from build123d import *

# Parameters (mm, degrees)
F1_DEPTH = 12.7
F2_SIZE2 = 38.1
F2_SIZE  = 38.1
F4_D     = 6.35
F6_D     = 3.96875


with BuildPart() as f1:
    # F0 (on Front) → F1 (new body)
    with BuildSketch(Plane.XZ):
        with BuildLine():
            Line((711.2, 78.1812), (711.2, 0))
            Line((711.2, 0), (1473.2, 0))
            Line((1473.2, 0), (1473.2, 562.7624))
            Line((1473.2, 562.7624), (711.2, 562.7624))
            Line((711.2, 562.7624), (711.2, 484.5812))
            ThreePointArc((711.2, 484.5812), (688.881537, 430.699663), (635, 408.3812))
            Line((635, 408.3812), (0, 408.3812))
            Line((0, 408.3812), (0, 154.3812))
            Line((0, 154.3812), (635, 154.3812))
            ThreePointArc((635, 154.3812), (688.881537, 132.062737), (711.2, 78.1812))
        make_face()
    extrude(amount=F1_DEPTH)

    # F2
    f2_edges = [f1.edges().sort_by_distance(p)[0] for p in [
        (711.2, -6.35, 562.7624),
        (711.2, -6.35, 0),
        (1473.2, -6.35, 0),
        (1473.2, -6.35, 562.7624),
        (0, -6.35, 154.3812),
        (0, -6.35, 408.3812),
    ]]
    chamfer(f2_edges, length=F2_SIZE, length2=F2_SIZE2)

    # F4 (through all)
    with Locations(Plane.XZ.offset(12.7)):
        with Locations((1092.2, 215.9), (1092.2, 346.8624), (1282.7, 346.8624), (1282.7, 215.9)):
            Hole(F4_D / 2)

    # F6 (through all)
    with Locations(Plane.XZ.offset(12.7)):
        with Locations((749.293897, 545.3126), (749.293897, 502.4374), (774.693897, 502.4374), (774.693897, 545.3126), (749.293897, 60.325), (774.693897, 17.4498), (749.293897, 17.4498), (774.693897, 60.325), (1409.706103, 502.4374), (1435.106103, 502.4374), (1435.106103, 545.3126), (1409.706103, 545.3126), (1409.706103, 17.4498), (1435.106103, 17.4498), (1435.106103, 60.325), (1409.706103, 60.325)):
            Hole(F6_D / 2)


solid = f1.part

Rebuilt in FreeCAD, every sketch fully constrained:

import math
import FreeCAD as App
import Part
import Sketcher

V = App.Vector
Q = App.Units.Quantity


def edges_at(feature, points):
    """Names of the edges that pass closest to the given points."""
    edges = feature.Shape.Edges
    near = lambda p: min(range(len(edges)), key=lambda i: edges[i].distToShape(Part.Vertex(*p))[0])
    return sorted({f"Edge{near(p) + 1}" for p in points})

doc = App.newDocument("Part")
body = doc.addObject("PartDesign::Body", "Body")

# Sketch on XZ plane
sketch1 = body.newObject("Sketcher::SketchObject", "Sketch")
sketch1.AttachmentSupport = (doc.getObject("XZ_Plane"), [""])
sketch1.MapMode = "FlatFace"
sketch1.addGeometry(Part.LineSegment(V(711, 78, 0), V(711, 0, 0)), False)
sketch1.addGeometry(Part.LineSegment(V(711, 0, 0), V(1473, 0, 0)), False)
sketch1.addGeometry(Part.LineSegment(V(1473, 0, 0), V(1473, 563, 0)), False)
sketch1.addGeometry(Part.LineSegment(V(1473, 563, 0), V(711, 563, 0)), False)
sketch1.addGeometry(Part.LineSegment(V(711, 563, 0), V(711, 485, 0)), False)
sketch1.addGeometry(Part.ArcOfCircle(Part.Circle(V(635, 485, 0), V(0, 0, 1), 76), math.radians(-90), math.radians(0)), False)
sketch1.addGeometry(Part.LineSegment(V(635, 408, 0), V(0, 408, 0)), False)
sketch1.addGeometry(Part.LineSegment(V(0, 408, 0), V(0, 154, 0)), False)
sketch1.addGeometry(Part.LineSegment(V(0, 154, 0), V(635, 154, 0)), False)
sketch1.addGeometry(Part.ArcOfCircle(Part.Circle(V(635, 78, 0), V(0, 0, 1), 76), math.radians(0), math.radians(90)), False)
sketch1.addConstraint(Sketcher.Constraint("Coincident", 0, 2, 1, 1))
sketch1.addConstraint(Sketcher.Constraint("Coincident", 1, 2, 2, 1))
sketch1.addConstraint(Sketcher.Constraint("Coincident", 2, 2, 3, 1))
sketch1.addConstraint(Sketcher.Constraint("Coincident", 3, 2, 4, 1))
sketch1.addConstraint(Sketcher.Constraint("Tangent", 4, 2, 5, 2))
sketch1.addConstraint(Sketcher.Constraint("Tangent", 5, 1, 6, 1))
sketch1.addConstraint(Sketcher.Constraint("Coincident", 6, 2, 7, 1))
sketch1.addConstraint(Sketcher.Constraint("Coincident", 7, 2, 8, 1))
sketch1.addConstraint(Sketcher.Constraint("Tangent", 8, 2, 9, 2))
sketch1.addConstraint(Sketcher.Constraint("Tangent", 9, 1, 0, 1))
sketch1.addConstraint(Sketcher.Constraint("Vertical", 0))
sketch1.addConstraint(Sketcher.Constraint("Horizontal", 1))
sketch1.addConstraint(Sketcher.Constraint("Vertical", 2))
sketch1.addConstraint(Sketcher.Constraint("Horizontal", 3))
sketch1.addConstraint(Sketcher.Constraint("Vertical", 4))
sketch1.addConstraint(Sketcher.Constraint("Horizontal", 6))
sketch1.addConstraint(Sketcher.Constraint("Vertical", 7))
sketch1.addConstraint(Sketcher.Constraint("Horizontal", 8))
sketch1.addConstraint(Sketcher.Constraint("Equal", 5, 9))
sketch1.addConstraint(Sketcher.Constraint("PointOnObject", 0, 2, -1))
sketch1.addConstraint(Sketcher.Constraint("PointOnObject", 6, 2, -2))
sketch1.addConstraint(Sketcher.Constraint("Vertical", 5, 3, 9, 3))
sketch1.addConstraint(Sketcher.Constraint("Equal", 0, 4))
sketch1.addConstraint(Sketcher.Constraint("Radius", 5, Q("3 in")))
sketch1.addConstraint(Sketcher.Constraint("DistanceX", 1, 1, 1, 2, Q("30 in")))
sketch1.addConstraint(Sketcher.Constraint("DistanceX", 6, 2, 6, 1, Q("25 in")))
sketch1.addConstraint(Sketcher.Constraint("DistanceY", 7, 2, 7, 1, Q("10 in")))
sketch1.addConstraint(Sketcher.Constraint("DistanceY", 0, 2, 0, 1, Q("3.078 in")))
pad1 = body.newObject("PartDesign::Pad", "Pad")
pad1.Profile = sketch1
pad1.Length = Q("0.5 in")
doc.recompute()

chamfer = body.newObject("PartDesign::Chamfer", "Chamfer")
chamfer.Base = (pad1, edges_at(pad1, [
    (711.2, -6.35, 562.762),
    (711.2, -6.35, 0),
    (1473.2, -6.35, 0),
    (1473.2, -6.35, 562.762),
    (0, -6.35, 154.381),
    (0, -6.35, 408.381),
]))
chamfer.ChamferType = "Two distances"
chamfer.Size = Q("1.5 in")
chamfer.Size2 = Q("1.5 in")

# Sketch on XZ plane
sketch2 = body.newObject("Sketcher::SketchObject", "Sketch001")
sketch2.AttachmentSupport = (doc.getObject("XZ_Plane"), [""])
sketch2.MapMode = "FlatFace"
sketch2.AttachmentOffset = App.Placement(V(0, 0, 0.5 * 25.4), App.Rotation())
sketch2.addGeometry(Part.Circle(V(1092.2, 215.9, 0), V(0, 0, 1), 3.2), False)
sketch2.addGeometry(Part.Circle(V(1092.2, 346.9, 0), V(0, 0, 1), 3.2), False)
sketch2.addGeometry(Part.Circle(V(1282.7, 346.9, 0), V(0, 0, 1), 3.2), False)
sketch2.addGeometry(Part.Circle(V(1282.7, 215.9, 0), V(0, 0, 1), 3.2), False)
sketch2.addConstraint(Sketcher.Constraint("Equal", 0, 1))
sketch2.addConstraint(Sketcher.Constraint("Equal", 1, 2))
sketch2.addConstraint(Sketcher.Constraint("Equal", 2, 3))
sketch2.addConstraint(Sketcher.Constraint("Horizontal", 1, 3, 2, 3))
sketch2.addConstraint(Sketcher.Constraint("Horizontal", 0, 3, 3, 3))
sketch2.addConstraint(Sketcher.Constraint("Vertical", 0, 3, 1, 3))
sketch2.addConstraint(Sketcher.Constraint("Vertical", 2, 3, 3, 3))
sketch2.addConstraint(Sketcher.Constraint("Diameter", 0, Q("0.25 in")))
sketch2.addConstraint(Sketcher.Constraint("DistanceX", -1, 1, 0, 3, Q("43 in")))
sketch2.addConstraint(Sketcher.Constraint("DistanceY", -1, 1, 0, 3, Q("8.5 in")))
sketch2.addConstraint(Sketcher.Constraint("DistanceX", -1, 1, 2, 3, Q("50.5 in")))
sketch2.addConstraint(Sketcher.Constraint("DistanceY", -1, 1, 1, 3, Q("13.656 in")))
doc.recompute()
hole = body.newObject("PartDesign::Hole", "Hole")
hole.Profile = sketch2
hole.ThreadType = "None"
hole.Diameter = Q("0.25 in")
hole.DepthType = "ThroughAll"

# Sketch on XZ plane
sketch3 = body.newObject("Sketcher::SketchObject", "Sketch002")
sketch3.AttachmentSupport = (doc.getObject("XZ_Plane"), [""])
sketch3.MapMode = "FlatFace"
sketch3.AttachmentOffset = App.Placement(V(0, 0, 0.5 * 25.4), App.Rotation())
sketch3.addGeometry(Part.Circle(V(749.3, 545.3, 0), V(0, 0, 1), 2), False)
sketch3.addGeometry(Part.Circle(V(749.3, 502.4, 0), V(0, 0, 1), 2), False)
sketch3.addGeometry(Part.Circle(V(774.7, 502.4, 0), V(0, 0, 1), 2), False)
sketch3.addGeometry(Part.Circle(V(774.7, 545.3, 0), V(0, 0, 1), 2), False)
sketch3.addGeometry(Part.Circle(V(749.3, 60.3, 0), V(0, 0, 1), 2), False)
sketch3.addGeometry(Part.Circle(V(774.7, 17.4, 0), V(0, 0, 1), 2), False)
sketch3.addGeometry(Part.Circle(V(749.3, 17.4, 0), V(0, 0, 1), 2), False)
sketch3.addGeometry(Part.Circle(V(774.7, 60.3, 0), V(0, 0, 1), 2), False)
sketch3.addGeometry(Part.Circle(V(1409.7, 502.4, 0), V(0, 0, 1), 2), False)
sketch3.addGeometry(Part.Circle(V(1435.1, 502.4, 0), V(0, 0, 1), 2), False)
sketch3.addGeometry(Part.Circle(V(1435.1, 545.3, 0), V(0, 0, 1), 2), False)
sketch3.addGeometry(Part.Circle(V(1409.7, 545.3, 0), V(0, 0, 1), 2), False)
sketch3.addGeometry(Part.Circle(V(1409.7, 17.4, 0), V(0, 0, 1), 2), False)
sketch3.addGeometry(Part.Circle(V(1435.1, 17.4, 0), V(0, 0, 1), 2), False)
sketch3.addGeometry(Part.Circle(V(1435.1, 60.3, 0), V(0, 0, 1), 2), False)
sketch3.addGeometry(Part.Circle(V(1409.7, 60.3, 0), V(0, 0, 1), 2), False)
sketch3.addConstraint(Sketcher.Constraint("Equal", 0, 1))
sketch3.addConstraint(Sketcher.Constraint("Equal", 1, 2))
sketch3.addConstraint(Sketcher.Constraint("Equal", 2, 3))
sketch3.addConstraint(Sketcher.Constraint("Equal", 3, 4))
sketch3.addConstraint(Sketcher.Constraint("Equal", 4, 5))
sketch3.addConstraint(Sketcher.Constraint("Equal", 5, 6))
sketch3.addConstraint(Sketcher.Constraint("Equal", 6, 7))
sketch3.addConstraint(Sketcher.Constraint("Equal", 7, 8))
sketch3.addConstraint(Sketcher.Constraint("Equal", 8, 9))
sketch3.addConstraint(Sketcher.Constraint("Equal", 9, 10))
sketch3.addConstraint(Sketcher.Constraint("Equal", 10, 11))
sketch3.addConstraint(Sketcher.Constraint("Equal", 11, 12))
sketch3.addConstraint(Sketcher.Constraint("Equal", 12, 13))
sketch3.addConstraint(Sketcher.Constraint("Equal", 13, 14))
sketch3.addConstraint(Sketcher.Constraint("Equal", 14, 15))
sketch3.addConstraint(Sketcher.Constraint("Horizontal", 1, 3, 2, 3))
sketch3.addConstraint(Sketcher.Constraint("Horizontal", 0, 3, 3, 3))
sketch3.addConstraint(Sketcher.Constraint("Horizontal", 5, 3, 6, 3))
sketch3.addConstraint(Sketcher.Constraint("Horizontal", 4, 3, 7, 3))
sketch3.addConstraint(Sketcher.Constraint("Horizontal", 2, 3, 8, 3))
sketch3.addConstraint(Sketcher.Constraint("Horizontal", 8, 3, 9, 3))
sketch3.addConstraint(Sketcher.Constraint("Horizontal", 3, 3, 10, 3))
sketch3.addConstraint(Sketcher.Constraint("Horizontal", 10, 3, 11, 3))
sketch3.addConstraint(Sketcher.Constraint("Horizontal", 6, 3, 12, 3))
sketch3.addConstraint(Sketcher.Constraint("Horizontal", 12, 3, 13, 3))
sketch3.addConstraint(Sketcher.Constraint("Horizontal", 7, 3, 14, 3))
sketch3.addConstraint(Sketcher.Constraint("Horizontal", 14, 3, 15, 3))
sketch3.addConstraint(Sketcher.Constraint("Vertical", 0, 3, 1, 3))
sketch3.addConstraint(Sketcher.Constraint("Vertical", 2, 3, 3, 3))
sketch3.addConstraint(Sketcher.Constraint("Vertical", 1, 3, 4, 3))
sketch3.addConstraint(Sketcher.Constraint("Vertical", 3, 3, 5, 3))
sketch3.addConstraint(Sketcher.Constraint("Vertical", 4, 3, 6, 3))
sketch3.addConstraint(Sketcher.Constraint("Vertical", 5, 3, 7, 3))
sketch3.addConstraint(Sketcher.Constraint("Vertical", 9, 3, 10, 3))
sketch3.addConstraint(Sketcher.Constraint("Vertical", 8, 3, 11, 3))
sketch3.addConstraint(Sketcher.Constraint("Vertical", 11, 3, 12, 3))
sketch3.addConstraint(Sketcher.Constraint("Vertical", 10, 3, 13, 3))
sketch3.addConstraint(Sketcher.Constraint("Vertical", 13, 3, 14, 3))
sketch3.addConstraint(Sketcher.Constraint("Vertical", 12, 3, 15, 3))
sketch3.addConstraint(Sketcher.Constraint("Diameter", 0, Q("0.15625 in")))
sketch3.addConstraint(Sketcher.Constraint("DistanceX", 1, 3, 2, 3, Q("1 in")))
sketch3.addConstraint(Sketcher.Constraint("DistanceX", 8, 3, 9, 3, Q("1 in")))
sketch3.addConstraint(Sketcher.Constraint("DistanceY", -1, 1, 0, 3, Q("21.469 in")))
sketch3.addConstraint(Sketcher.Constraint("DistanceY", -1, 1, 1, 3, Q("19.781 in")))
sketch3.addConstraint(Sketcher.Constraint("DistanceY", -1, 1, 4, 3, Q("2.375 in")))
sketch3.addConstraint(Sketcher.Constraint("DistanceY", -1, 1, 5, 3, Q("0.687 in")))
sketch3.addConstraint(Sketcher.Constraint("DistanceX", -1, 1, 0, 3, Q("749.293897 mm")))
sketch3.addConstraint(Sketcher.Constraint("DistanceX", -1, 1, 8, 3, Q("1409.706103 mm")))
doc.recompute()
hole2 = body.newObject("PartDesign::Hole", "Hole001")
hole2.Profile = sketch3
hole2.ThreadType = "None"
hole2.Diameter = Q("0.15625 in")
hole2.DepthType = "ThroughAll"

doc.recompute()
